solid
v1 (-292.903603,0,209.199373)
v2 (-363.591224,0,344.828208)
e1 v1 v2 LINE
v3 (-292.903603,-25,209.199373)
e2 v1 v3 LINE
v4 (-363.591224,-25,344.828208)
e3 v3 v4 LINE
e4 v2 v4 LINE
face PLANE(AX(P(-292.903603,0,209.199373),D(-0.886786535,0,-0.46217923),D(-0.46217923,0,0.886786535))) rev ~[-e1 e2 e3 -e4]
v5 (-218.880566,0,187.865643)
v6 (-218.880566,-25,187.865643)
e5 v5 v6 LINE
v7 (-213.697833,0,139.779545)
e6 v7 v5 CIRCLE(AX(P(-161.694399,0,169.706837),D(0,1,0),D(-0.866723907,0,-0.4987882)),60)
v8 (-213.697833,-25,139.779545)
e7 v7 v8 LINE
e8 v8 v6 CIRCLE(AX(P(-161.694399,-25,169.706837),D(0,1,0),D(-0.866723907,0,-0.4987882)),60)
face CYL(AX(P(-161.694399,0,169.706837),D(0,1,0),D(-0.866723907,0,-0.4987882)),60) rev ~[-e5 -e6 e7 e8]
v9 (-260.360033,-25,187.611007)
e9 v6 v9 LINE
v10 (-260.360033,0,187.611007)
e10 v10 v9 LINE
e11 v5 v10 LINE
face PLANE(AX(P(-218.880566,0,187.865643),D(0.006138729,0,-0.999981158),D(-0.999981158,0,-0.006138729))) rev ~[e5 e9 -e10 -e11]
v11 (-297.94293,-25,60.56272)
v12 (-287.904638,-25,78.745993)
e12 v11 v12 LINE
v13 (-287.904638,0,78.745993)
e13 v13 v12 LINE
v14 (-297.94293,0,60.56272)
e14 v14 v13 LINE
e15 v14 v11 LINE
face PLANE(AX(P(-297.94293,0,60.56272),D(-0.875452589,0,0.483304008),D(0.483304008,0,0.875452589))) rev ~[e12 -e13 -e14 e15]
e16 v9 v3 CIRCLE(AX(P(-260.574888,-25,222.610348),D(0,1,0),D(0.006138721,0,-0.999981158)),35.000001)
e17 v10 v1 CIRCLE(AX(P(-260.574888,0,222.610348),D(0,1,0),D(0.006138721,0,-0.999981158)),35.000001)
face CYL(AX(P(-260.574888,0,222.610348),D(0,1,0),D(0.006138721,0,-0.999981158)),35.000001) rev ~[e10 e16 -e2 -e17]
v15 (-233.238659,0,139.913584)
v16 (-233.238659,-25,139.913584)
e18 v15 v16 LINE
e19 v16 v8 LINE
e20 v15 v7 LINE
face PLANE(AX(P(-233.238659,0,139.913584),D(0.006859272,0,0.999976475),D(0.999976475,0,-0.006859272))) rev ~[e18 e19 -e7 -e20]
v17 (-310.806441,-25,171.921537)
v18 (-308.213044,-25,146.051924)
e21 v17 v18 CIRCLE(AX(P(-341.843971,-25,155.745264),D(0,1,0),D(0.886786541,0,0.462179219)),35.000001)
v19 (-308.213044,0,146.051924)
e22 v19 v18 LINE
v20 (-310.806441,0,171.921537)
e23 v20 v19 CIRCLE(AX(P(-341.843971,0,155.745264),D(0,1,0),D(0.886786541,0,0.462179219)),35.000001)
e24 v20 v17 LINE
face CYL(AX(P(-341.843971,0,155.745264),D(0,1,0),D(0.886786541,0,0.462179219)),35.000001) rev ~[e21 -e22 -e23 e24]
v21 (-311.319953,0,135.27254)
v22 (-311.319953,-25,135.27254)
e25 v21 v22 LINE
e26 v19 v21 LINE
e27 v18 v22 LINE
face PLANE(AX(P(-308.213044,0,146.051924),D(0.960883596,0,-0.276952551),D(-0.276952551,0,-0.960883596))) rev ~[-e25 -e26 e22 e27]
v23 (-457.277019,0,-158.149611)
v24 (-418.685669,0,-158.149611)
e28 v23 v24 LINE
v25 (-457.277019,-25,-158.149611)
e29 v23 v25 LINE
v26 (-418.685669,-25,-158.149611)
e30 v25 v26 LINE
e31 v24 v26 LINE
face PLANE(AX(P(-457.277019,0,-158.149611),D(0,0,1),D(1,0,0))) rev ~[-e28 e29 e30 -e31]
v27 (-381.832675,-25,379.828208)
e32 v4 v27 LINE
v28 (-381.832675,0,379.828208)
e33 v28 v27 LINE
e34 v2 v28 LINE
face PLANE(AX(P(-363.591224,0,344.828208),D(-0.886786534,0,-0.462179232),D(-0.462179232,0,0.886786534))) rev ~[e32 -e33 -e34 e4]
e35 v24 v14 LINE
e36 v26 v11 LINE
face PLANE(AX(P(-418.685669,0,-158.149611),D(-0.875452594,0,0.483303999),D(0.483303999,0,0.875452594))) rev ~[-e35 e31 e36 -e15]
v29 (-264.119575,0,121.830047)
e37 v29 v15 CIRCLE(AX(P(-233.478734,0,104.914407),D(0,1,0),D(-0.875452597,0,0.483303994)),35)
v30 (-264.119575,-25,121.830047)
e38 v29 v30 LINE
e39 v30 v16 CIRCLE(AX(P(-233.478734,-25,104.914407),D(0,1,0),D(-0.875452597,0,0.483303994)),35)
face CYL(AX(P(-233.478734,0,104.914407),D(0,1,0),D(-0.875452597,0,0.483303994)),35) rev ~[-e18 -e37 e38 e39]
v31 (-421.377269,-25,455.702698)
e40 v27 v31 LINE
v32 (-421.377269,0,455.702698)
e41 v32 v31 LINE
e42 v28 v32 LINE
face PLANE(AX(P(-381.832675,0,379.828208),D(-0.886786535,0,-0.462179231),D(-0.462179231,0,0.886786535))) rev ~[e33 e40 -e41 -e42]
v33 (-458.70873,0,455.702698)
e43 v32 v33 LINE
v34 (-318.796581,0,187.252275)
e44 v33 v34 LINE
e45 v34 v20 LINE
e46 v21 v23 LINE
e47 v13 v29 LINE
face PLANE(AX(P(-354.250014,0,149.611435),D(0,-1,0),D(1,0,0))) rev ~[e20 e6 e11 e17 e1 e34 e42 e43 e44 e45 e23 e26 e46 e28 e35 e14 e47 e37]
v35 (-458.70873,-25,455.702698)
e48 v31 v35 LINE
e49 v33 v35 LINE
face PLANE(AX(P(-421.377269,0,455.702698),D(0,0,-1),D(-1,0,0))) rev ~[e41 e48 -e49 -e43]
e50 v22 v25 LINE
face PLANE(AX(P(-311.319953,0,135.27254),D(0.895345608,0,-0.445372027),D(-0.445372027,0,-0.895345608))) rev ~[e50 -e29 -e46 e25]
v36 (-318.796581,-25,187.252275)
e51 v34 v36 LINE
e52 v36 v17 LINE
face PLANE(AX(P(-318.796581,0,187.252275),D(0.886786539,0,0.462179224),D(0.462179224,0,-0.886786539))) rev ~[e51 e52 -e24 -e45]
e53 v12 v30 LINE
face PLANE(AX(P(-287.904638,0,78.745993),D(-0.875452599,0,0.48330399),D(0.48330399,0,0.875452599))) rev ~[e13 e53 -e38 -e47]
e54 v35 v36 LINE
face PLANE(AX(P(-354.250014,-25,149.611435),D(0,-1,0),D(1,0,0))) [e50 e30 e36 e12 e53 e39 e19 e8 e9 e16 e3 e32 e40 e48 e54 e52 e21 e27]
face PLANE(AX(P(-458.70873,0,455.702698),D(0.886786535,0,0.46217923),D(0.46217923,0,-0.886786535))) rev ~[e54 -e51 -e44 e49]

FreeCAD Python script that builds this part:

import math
import FreeCAD as App
import Part
import Sketcher
Q = App.Units.Quantity

doc = App.newDocument("Part")
body = doc.addObject("PartDesign::Body", "Body")

# Sketch on XZ plane
sketch1 = doc.addObject("Sketcher::SketchObject", "Sketch")
body.addObject(sketch1)
sketch1.AttachmentSupport = (doc.XZ_Plane, [""])
sketch1.MapMode = "FlatFace"
sketch1.addGeometry(Part.LineSegment(App.Vector(-298, 61, 0), App.Vector(-288, 79, 0)), False)
sketch1.addGeometry(Part.LineSegment(App.Vector(-288, 79, 0), App.Vector(-264, 122, 0)), False)
sketch1.addGeometry(Part.ArcOfCircle(Part.Circle(App.Vector(-233, 105, 0), App.Vector(0, 0, 1), 35), math.radians(90), math.radians(151)), False)
sketch1.addGeometry(Part.LineSegment(App.Vector(-233, 140, 0), App.Vector(-214, 140, 0)), False)
sketch1.addGeometry(Part.ArcOfCircle(Part.Circle(App.Vector(-162, 170, 0), App.Vector(0, 0, 1), 60), math.radians(162), math.radians(210)), False)
sketch1.addGeometry(Part.LineSegment(App.Vector(-219, 188, 0), App.Vector(-260, 188, 0)), False)
sketch1.addGeometry(Part.ArcOfCircle(Part.Circle(App.Vector(-261, 223, 0), App.Vector(0, 0, 1), 35), math.radians(-157), math.radians(-90)), False)
sketch1.addGeometry(Part.LineSegment(App.Vector(-293, 209, 0), App.Vector(-364, 345, 0)), False)
sketch1.addGeometry(Part.LineSegment(App.Vector(-364, 345, 0), App.Vector(-382, 380, 0)), False)
sketch1.addGeometry(Part.LineSegment(App.Vector(-382, 380, 0), App.Vector(-421, 456, 0)), False)
sketch1.addGeometry(Part.LineSegment(App.Vector(-421, 456, 0), App.Vector(-459, 456, 0)), False)
sketch1.addGeometry(Part.LineSegment(App.Vector(-459, 456, 0), App.Vector(-319, 187, 0)), False)
sketch1.addGeometry(Part.LineSegment(App.Vector(-319, 187, 0), App.Vector(-311, 172, 0)), False)
sketch1.addGeometry(Part.ArcOfCircle(Part.Circle(App.Vector(-342, 156, 0), App.Vector(0, 0, 1), 35), math.radians(-16), math.radians(28)), False)
sketch1.addGeometry(Part.LineSegment(App.Vector(-308, 146, 0), App.Vector(-311, 135, 0)), False)
sketch1.addGeometry(Part.LineSegment(App.Vector(-311, 135, 0), App.Vector(-457, -158, 0)), False)
sketch1.addGeometry(Part.LineSegment(App.Vector(-457, -158, 0), App.Vector(-419, -158, 0)), False)
sketch1.addGeometry(Part.LineSegment(App.Vector(-419, -158, 0), App.Vector(-298, 61, 0)), False)
sketch1.addConstraint(Sketcher.Constraint("Coincident", 0, 2, 1, 1))
sketch1.addConstraint(Sketcher.Constraint("Tangent", 1, 2, 2, 2))
sketch1.addConstraint(Sketcher.Constraint("Tangent", 2, 1, 3, 1))
sketch1.addConstraint(Sketcher.Constraint("Coincident", 3, 2, 4, 2))
sketch1.addConstraint(Sketcher.Constraint("Coincident", 4, 1, 5, 1))
sketch1.addConstraint(Sketcher.Constraint("Tangent", 5, 2, 6, 2))
sketch1.addConstraint(Sketcher.Constraint("Coincident", 6, 1, 7, 1))
sketch1.addConstraint(Sketcher.Constraint("Coincident", 7, 2, 8, 1))
sketch1.addConstraint(Sketcher.Constraint("Coincident", 8, 2, 9, 1))
sketch1.addConstraint(Sketcher.Constraint("Coincident", 9, 2, 10, 1))
sketch1.addConstraint(Sketcher.Constraint("Coincident", 10, 2, 11, 1))
sketch1.addConstraint(Sketcher.Constraint("Coincident", 11, 2, 12, 1))
sketch1.addConstraint(Sketcher.Constraint("Tangent", 12, 2, 13, 2))
sketch1.addConstraint(Sketcher.Constraint("Tangent", 13, 1, 14, 1))
sketch1.addConstraint(Sketcher.Constraint("Coincident", 14, 2, 15, 1))
sketch1.addConstraint(Sketcher.Constraint("Coincident", 15, 2, 16, 1))
sketch1.addConstraint(Sketcher.Constraint("Coincident", 16, 2, 17, 1))
sketch1.addConstraint(Sketcher.Constraint("Coincident", 17, 2, 0, 1))
sketch1.addConstraint(Sketcher.Constraint("Horizontal", 10))
sketch1.addConstraint(Sketcher.Constraint("Horizontal", 16))
sketch1.addConstraint(Sketcher.Constraint("Equal", 2, 6))
sketch1.addConstraint(Sketcher.Constraint("Equal", 6, 13))
sketch1.addConstraint(Sketcher.Constraint("Parallel", 0, 1))
sketch1.addConstraint(Sketcher.Constraint("Parallel", 7, 8))
sketch1.addConstraint(Sketcher.Constraint("Parallel", 8, 9))
sketch1.addConstraint(Sketcher.Constraint("Parallel", 9, 11))
sketch1.addConstraint(Sketcher.Constraint("Parallel", 11, 12))
sketch1.addConstraint(Sketcher.Constraint("Parallel", 1, 17))
sketch1.addConstraint(Sketcher.Constraint("Radius", 2, Q("35 mm")))
sketch1.addConstraint(Sketcher.Constraint("Radius", 4, Q("60 mm")))
sketch1.addConstraint(Sketcher.Constraint("DistanceY", 7, 2, 8, 2, Q("35 mm")))
sketch1.addConstraint(Sketcher.Constraint("Distance", 14, Q("11.2182 mm")))
sketch1.addConstraint(Sketcher.Constraint("DistanceX", 10, 2, 10, 1, Q("37.331461 mm")))
sketch1.addConstraint(Sketcher.Constraint("DistanceX", 16, 1, 16, 2, Q("38.59135 mm")))
sketch1.addConstraint(Sketcher.Constraint("DistanceX", 4, 3, -1, 1, Q("161.694399 mm")))
sketch1.addConstraint(Sketcher.Constraint("DistanceY", -1, 1, 9, 2, Q("455.702698 mm")))
sketch1.addConstraint(Sketcher.Constraint("DistanceY", 1, 2, 6, 3, Q("100.780301 mm")))
sketch1.addConstraint(Sketcher.Constraint("DistanceX", 2, 3, 3, 2, Q("19.780901 mm")))
sketch1.addConstraint(Sketcher.Constraint("DistanceY", 1, 2, 3, 2, Q("17.949498 mm")))
sketch1.addConstraint(Sketcher.Constraint("DistanceY", 3, 2, 4, 1, Q("48.086098 mm")))
sketch1.addConstraint(Sketcher.Constraint("DistanceX", 5, 2, 3, 2, Q("46.6622 mm")))
sketch1.addConstraint(Sketcher.Constraint("DistanceY", 5, 2, 7, 2, Q("157.217201 mm")))
sketch1.addConstraint(Sketcher.Constraint("Distance", 0, Q("20.77014 mm")))
sketch1.addConstraint(Sketcher.Constraint("Distance", 5, Q("41.480249 mm")))
sketch1.addConstraint(Sketcher.Constraint("Distance", 8, Q("39.468349 mm")))
sketch1.addConstraint(Sketcher.Constraint("Distance", 11, Q("302.72271 mm")))
sketch1.addConstraint(Sketcher.Constraint("Distance", 12, Q("17.287969 mm")))
sketch1.addConstraint(Sketcher.Constraint("Distance", 15, Q("327.719428 mm")))
sketch1.addConstraint(Sketcher.Constraint("DistanceY", -1, 1, 6, 3, Q("222.610348 mm")))
sketch1.addConstraint(Sketcher.Constraint("DistanceX", 13, 3, -1, 1, Q("341.843971 mm")))
sketch1.addConstraint(Sketcher.Constraint("DistanceX", 0, 2, -1, 1, Q("287.904638 mm")))
sketch1.addConstraint(Sketcher.Constraint("DistanceX", 2, 1, -1, 1, Q("233.238659 mm")))
sketch1.addConstraint(Sketcher.Constraint("DistanceY", -1, 1, 14, 2, Q("135.27254 mm")))
pad1 = doc.addObject("PartDesign::Pad", "Pad")
body.addObject(pad1)
pad1.Profile = sketch1
pad1.Length = 25

doc.recompute()
